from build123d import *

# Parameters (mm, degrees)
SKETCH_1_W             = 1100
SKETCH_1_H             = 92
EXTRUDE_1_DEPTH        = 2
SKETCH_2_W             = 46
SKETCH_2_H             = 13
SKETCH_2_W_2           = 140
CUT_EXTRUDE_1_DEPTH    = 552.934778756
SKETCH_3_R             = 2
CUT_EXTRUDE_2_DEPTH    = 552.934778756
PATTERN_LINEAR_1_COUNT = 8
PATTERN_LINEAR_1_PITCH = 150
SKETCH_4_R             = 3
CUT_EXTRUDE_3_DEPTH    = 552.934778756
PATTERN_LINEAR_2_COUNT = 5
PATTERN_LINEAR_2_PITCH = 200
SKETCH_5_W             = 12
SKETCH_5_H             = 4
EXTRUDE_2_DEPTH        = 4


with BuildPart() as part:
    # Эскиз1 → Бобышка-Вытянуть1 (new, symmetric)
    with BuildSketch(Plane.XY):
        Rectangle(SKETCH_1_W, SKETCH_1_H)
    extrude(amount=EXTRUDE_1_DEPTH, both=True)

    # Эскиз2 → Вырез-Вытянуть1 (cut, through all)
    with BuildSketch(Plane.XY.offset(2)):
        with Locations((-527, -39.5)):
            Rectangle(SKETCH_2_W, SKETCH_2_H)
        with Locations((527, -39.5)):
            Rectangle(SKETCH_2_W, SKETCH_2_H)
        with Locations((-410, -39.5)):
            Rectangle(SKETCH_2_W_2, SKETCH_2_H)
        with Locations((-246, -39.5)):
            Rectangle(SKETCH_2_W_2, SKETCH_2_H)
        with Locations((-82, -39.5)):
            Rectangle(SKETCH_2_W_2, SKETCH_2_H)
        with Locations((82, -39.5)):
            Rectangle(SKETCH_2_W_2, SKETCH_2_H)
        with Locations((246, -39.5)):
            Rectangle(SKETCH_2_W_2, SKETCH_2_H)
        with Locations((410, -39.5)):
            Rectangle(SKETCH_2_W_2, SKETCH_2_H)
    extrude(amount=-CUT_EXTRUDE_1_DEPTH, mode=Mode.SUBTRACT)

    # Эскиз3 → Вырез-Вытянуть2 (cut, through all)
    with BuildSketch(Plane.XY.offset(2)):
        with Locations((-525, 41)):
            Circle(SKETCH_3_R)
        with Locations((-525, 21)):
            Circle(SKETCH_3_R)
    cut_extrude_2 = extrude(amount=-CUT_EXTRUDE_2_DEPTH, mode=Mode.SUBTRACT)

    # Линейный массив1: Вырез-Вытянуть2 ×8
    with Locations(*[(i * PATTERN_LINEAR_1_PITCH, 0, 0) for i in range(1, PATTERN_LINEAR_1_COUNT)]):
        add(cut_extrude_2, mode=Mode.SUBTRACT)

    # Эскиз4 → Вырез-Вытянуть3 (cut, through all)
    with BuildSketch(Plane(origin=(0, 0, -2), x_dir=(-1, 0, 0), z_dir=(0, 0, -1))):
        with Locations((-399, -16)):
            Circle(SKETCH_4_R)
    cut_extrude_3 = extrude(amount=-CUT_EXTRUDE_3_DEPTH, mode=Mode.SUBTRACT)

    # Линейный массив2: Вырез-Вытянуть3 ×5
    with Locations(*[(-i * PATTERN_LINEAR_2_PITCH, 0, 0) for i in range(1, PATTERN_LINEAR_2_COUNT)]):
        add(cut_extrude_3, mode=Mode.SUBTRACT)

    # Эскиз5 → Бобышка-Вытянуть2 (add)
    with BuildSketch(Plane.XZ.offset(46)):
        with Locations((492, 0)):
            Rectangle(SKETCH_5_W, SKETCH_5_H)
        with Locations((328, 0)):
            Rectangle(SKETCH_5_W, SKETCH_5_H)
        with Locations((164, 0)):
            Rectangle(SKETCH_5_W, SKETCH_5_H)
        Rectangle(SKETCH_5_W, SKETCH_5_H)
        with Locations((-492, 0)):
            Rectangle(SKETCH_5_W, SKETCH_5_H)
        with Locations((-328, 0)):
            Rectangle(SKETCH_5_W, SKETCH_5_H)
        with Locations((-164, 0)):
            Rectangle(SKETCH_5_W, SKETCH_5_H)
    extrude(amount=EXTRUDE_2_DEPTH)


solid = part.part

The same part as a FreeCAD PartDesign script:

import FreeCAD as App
import Part
import Sketcher
from FreeCAD import Vector
Q = App.Units.Quantity

doc = App.newDocument("Part")
body = doc.addObject("PartDesign::Body", "Body")

# Sketch on XY plane
sketch1 = body.newObject("Sketcher::SketchObject", "Sketch")
sketch1.AttachmentSupport = (doc.getObject("XY_Plane"), [""])
sketch1.MapMode = "FlatFace"
sketch1.addGeometry(Part.LineSegment(Vector(-550, 46, 0), Vector(-550, -46, 0)), False)
sketch1.addGeometry(Part.LineSegment(Vector(-550, -46, 0), Vector(550, -46, 0)), False)
sketch1.addGeometry(Part.LineSegment(Vector(550, -46, 0), Vector(550, 46, 0)), False)
sketch1.addGeometry(Part.LineSegment(Vector(550, 46, 0), Vector(-550, 46, 0)), False)
sketch1.addConstraint(Sketcher.Constraint("Coincident", 0, 2, 1, 1))
sketch1.addConstraint(Sketcher.Constraint("Coincident", 1, 2, 2, 1))
sketch1.addConstraint(Sketcher.Constraint("Coincident", 2, 2, 3, 1))
sketch1.addConstraint(Sketcher.Constraint("Coincident", 3, 2, 0, 1))
sketch1.addConstraint(Sketcher.Constraint("Vertical", 0))
sketch1.addConstraint(Sketcher.Constraint("Horizontal", 1))
sketch1.addConstraint(Sketcher.Constraint("Vertical", 2))
sketch1.addConstraint(Sketcher.Constraint("Horizontal", 3))
sketch1.addConstraint(Sketcher.Constraint("Symmetric", 0, 2, 2, 2, -1, 1))
sketch1.addConstraint(Sketcher.Constraint("DistanceX", 1, 1, 1, 2, Q("1100 mm")))
sketch1.addConstraint(Sketcher.Constraint("DistanceY", 0, 2, 0, 1, Q("92 mm")))
pad1 = body.newObject("PartDesign::Pad", "Pad")
pad1.Profile = sketch1
pad1.Length = 4
pad1.Midplane = True

# Sketch on XY plane
sketch2 = body.newObject("Sketcher::SketchObject", "Sketch001")
sketch2.AttachmentSupport = (doc.getObject("XY_Plane"), [""])
sketch2.MapMode = "FlatFace"
sketch2.AttachmentOffset = App.Placement(Vector(0, 0, 2), App.Rotation())
sketch2.addGeometry(Part.LineSegment(Vector(-550, -33, 0), Vector(-550, -46, 0)), False)
sketch2.addGeometry(Part.LineSegment(Vector(-550, -46, 0), Vector(-504, -46, 0)), False)
sketch2.addGeometry(Part.LineSegment(Vector(-504, -46, 0), Vector(-504, -33, 0)), False)
sketch2.addGeometry(Part.LineSegment(Vector(-504, -33, 0), Vector(-550, -33, 0)), False)
sketch2.addGeometry(Part.LineSegment(Vector(504, -33, 0), Vector(504, -46, 0)), False)
sketch2.addGeometry(Part.LineSegment(Vector(504, -46, 0), Vector(550, -46, 0)), False)
sketch2.addGeometry(Part.LineSegment(Vector(550, -46, 0), Vector(550, -33, 0)), False)
sketch2.addGeometry(Part.LineSegment(Vector(550, -33, 0), Vector(504, -33, 0)), False)
sketch2.addGeometry(Part.LineSegment(Vector(-480, -33, 0), Vector(-480, -46, 0)), False)
sketch2.addGeometry(Part.LineSegment(Vector(-480, -46, 0), Vector(-340, -46, 0)), False)
sketch2.addGeometry(Part.LineSegment(Vector(-340, -46, 0), Vector(-340, -33, 0)), False)
sketch2.addGeometry(Part.LineSegment(Vector(-340, -33, 0), Vector(-480, -33, 0)), False)
sketch2.addGeometry(Part.LineSegment(Vector(-316, -33, 0), Vector(-316, -46, 0)), False)
sketch2.addGeometry(Part.LineSegment(Vector(-316, -46, 0), Vector(-176, -46, 0)), False)
sketch2.addGeometry(Part.LineSegment(Vector(-176, -46, 0), Vector(-176, -33, 0)), False)
sketch2.addGeometry(Part.LineSegment(Vector(-176, -33, 0), Vector(-316, -33, 0)), False)
sketch2.addGeometry(Part.LineSegment(Vector(-152, -33, 0), Vector(-152, -46, 0)), False)
sketch2.addGeometry(Part.LineSegment(Vector(-152, -46, 0), Vector(-12, -46, 0)), False)
sketch2.addGeometry(Part.LineSegment(Vector(-12, -46, 0), Vector(-12, -33, 0)), False)
sketch2.addGeometry(Part.LineSegment(Vector(-12, -33, 0), Vector(-152, -33, 0)), False)
sketch2.addGeometry(Part.LineSegment(Vector(12, -33, 0), Vector(12, -46, 0)), False)
sketch2.addGeometry(Part.LineSegment(Vector(12, -46, 0), Vector(152, -46, 0)), False)
sketch2.addGeometry(Part.LineSegment(Vector(152, -46, 0), Vector(152, -33, 0)), False)
sketch2.addGeometry(Part.LineSegment(Vector(152, -33, 0), Vector(12, -33, 0)), False)
sketch2.addGeometry(Part.LineSegment(Vector(176, -33, 0), Vector(176, -46, 0)), False)
sketch2.addGeometry(Part.LineSegment(Vector(176, -46, 0), Vector(316, -46, 0)), False)
sketch2.addGeometry(Part.LineSegment(Vector(316, -46, 0), Vector(316, -33, 0)), False)
sketch2.addGeometry(Part.LineSegment(Vector(316, -33, 0), Vector(176, -33, 0)), False)
sketch2.addGeometry(Part.LineSegment(Vector(340, -33, 0), Vector(340, -46, 0)), False)
sketch2.addGeometry(Part.LineSegment(Vector(340, -46, 0), Vector(480, -46, 0)), False)
sketch2.addGeometry(Part.LineSegment(Vector(480, -46, 0), Vector(480, -33, 0)), False)
sketch2.addGeometry(Part.LineSegment(Vector(480, -33, 0), Vector(340, -33, 0)), False)
sketch2.addConstraint(Sketcher.Constraint("Coincident", 0, 2, 1, 1))
sketch2.addConstraint(Sketcher.Constraint("Coincident", 1, 2, 2, 1))
sketch2.addConstraint(Sketcher.Constraint("Coincident", 2, 2, 3, 1))
sketch2.addConstraint(Sketcher.Constraint("Coincident", 3, 2, 0, 1))
sketch2.addConstraint(Sketcher.Constraint("Coincident", 4, 2, 5, 1))
sketch2.addConstraint(Sketcher.Constraint("Coincident", 5, 2, 6, 1))
sketch2.addConstraint(Sketcher.Constraint("Coincident", 6, 2, 7, 1))
sketch2.addConstraint(Sketcher.Constraint("Coincident", 7, 2, 4, 1))
sketch2.addConstraint(Sketcher.Constraint("Coincident", 8, 2, 9, 1))
sketch2.addConstraint(Sketcher.Constraint("Coincident", 9, 2, 10, 1))
sketch2.addConstraint(Sketcher.Constraint("Coincident", 10, 2, 11, 1))
sketch2.addConstraint(Sketcher.Constraint("Coincident", 11, 2, 8, 1))
sketch2.addConstraint(Sketcher.Constraint("Coincident", 12, 2, 13, 1))
sketch2.addConstraint(Sketcher.Constraint("Coincident", 13, 2, 14, 1))
sketch2.addConstraint(Sketcher.Constraint("Coincident", 14, 2, 15, 1))
sketch2.addConstraint(Sketcher.Constraint("Coincident", 15, 2, 12, 1))
sketch2.addConstraint(Sketcher.Constraint("Coincident", 16, 2, 17, 1))
sketch2.addConstraint(Sketcher.Constraint("Coincident", 17, 2, 18, 1))
sketch2.addConstraint(Sketcher.Constraint("Coincident", 18, 2, 19, 1))
sketch2.addConstraint(Sketcher.Constraint("Coincident", 19, 2, 16, 1))
sketch2.addConstraint(Sketcher.Constraint("Coincident", 20, 2, 21, 1))
sketch2.addConstraint(Sketcher.Constraint("Coincident", 21, 2, 22, 1))
sketch2.addConstraint(Sketcher.Constraint("Coincident", 22, 2, 23, 1))
sketch2.addConstraint(Sketcher.Constraint("Coincident", 23, 2, 20, 1))
sketch2.addConstraint(Sketcher.Constraint("Coincident", 24, 2, 25, 1))
sketch2.addConstraint(Sketcher.Constraint("Coincident", 25, 2, 26, 1))
sketch2.addConstraint(Sketcher.Constraint("Coincident", 26, 2, 27, 1))
sketch2.addConstraint(Sketcher.Constraint("Coincident", 27, 2, 24, 1))
sketch2.addConstraint(Sketcher.Constraint("Coincident", 28, 2, 29, 1))
sketch2.addConstraint(Sketcher.Constraint("Coincident", 29, 2, 30, 1))
sketch2.addConstraint(Sketcher.Constraint("Coincident", 30, 2, 31, 1))
sketch2.addConstraint(Sketcher.Constraint("Coincident", 31, 2, 28, 1))
sketch2.addConstraint(Sketcher.Constraint("Vertical", 0))
sketch2.addConstraint(Sketcher.Constraint("Horizontal", 1))
sketch2.addConstraint(Sketcher.Constraint("Vertical", 2))
sketch2.addConstraint(Sketcher.Constraint("Horizontal", 3))
sketch2.addConstraint(Sketcher.Constraint("Vertical", 4))
sketch2.addConstraint(Sketcher.Constraint("Horizontal", 5))
sketch2.addConstraint(Sketcher.Constraint("Vertical", 6))
sketch2.addConstraint(Sketcher.Constraint("Horizontal", 7))
sketch2.addConstraint(Sketcher.Constraint("Vertical", 8))
sketch2.addConstraint(Sketcher.Constraint("Horizontal", 9))
sketch2.addConstraint(Sketcher.Constraint("Vertical", 10))
sketch2.addConstraint(Sketcher.Constraint("Horizontal", 11))
sketch2.addConstraint(Sketcher.Constraint("Vertical", 12))
sketch2.addConstraint(Sketcher.Constraint("Horizontal", 13))
sketch2.addConstraint(Sketcher.Constraint("Vertical", 14))
sketch2.addConstraint(Sketcher.Constraint("Horizontal", 15))
sketch2.addConstraint(Sketcher.Constraint("Vertical", 16))
sketch2.addConstraint(Sketcher.Constraint("Horizontal", 17))
sketch2.addConstraint(Sketcher.Constraint("Vertical", 18))
sketch2.addConstraint(Sketcher.Constraint("Horizontal", 19))
sketch2.addConstraint(Sketcher.Constraint("Vertical", 20))
sketch2.addConstraint(Sketcher.Constraint("Horizontal", 21))
sketch2.addConstraint(Sketcher.Constraint("Vertical", 22))
sketch2.addConstraint(Sketcher.Constraint("Horizontal", 23))
sketch2.addConstraint(Sketcher.Constraint("Vertical", 24))
sketch2.addConstraint(Sketcher.Constraint("Horizontal", 25))
sketch2.addConstraint(Sketcher.Constraint("Vertical", 26))
sketch2.addConstraint(Sketcher.Constraint("Horizontal", 27))
sketch2.addConstraint(Sketcher.Constraint("Vertical", 28))
sketch2.addConstraint(Sketcher.Constraint("Horizontal", 29))
sketch2.addConstraint(Sketcher.Constraint("Vertical", 30))
sketch2.addConstraint(Sketcher.Constraint("Horizontal", 31))
sketch2.addConstraint(Sketcher.Constraint("Symmetric", 1, 2, 4, 2, -2))
sketch2.addConstraint(Sketcher.Constraint("Symmetric", 3, 2, 6, 2, -2))
sketch2.addConstraint(Sketcher.Constraint("Symmetric", 17, 2, 20, 2, -2))
sketch2.addConstraint(Sketcher.Constraint("Symmetric", 19, 2, 22, 2, -2))
sketch2.addConstraint(Sketcher.Constraint("Symmetric", 13, 2, 24, 2, -2))
sketch2.addConstraint(Sketcher.Constraint("Symmetric", 15, 2, 26, 2, -2))
sketch2.addConstraint(Sketcher.Constraint("Symmetric", 9, 2, 28, 2, -2))
sketch2.addConstraint(Sketcher.Constraint("Symmetric", 11, 2, 30, 2, -2))
sketch2.addConstraint(Sketcher.Constraint("Horizontal", 5, 2, 8, 2))
sketch2.addConstraint(Sketcher.Constraint("Horizontal", 7, 2, 10, 2))
sketch2.addConstraint(Sketcher.Constraint("Horizontal", 9, 2, 12, 2))
sketch2.addConstraint(Sketcher.Constraint("Horizontal", 11, 2, 14, 2))
sketch2.addConstraint(Sketcher.Constraint("Horizontal", 13, 2, 16, 2))
sketch2.addConstraint(Sketcher.Constraint("Horizontal", 15, 2, 18, 2))
sketch2.addConstraint(Sketcher.Constraint("Equal", 11, 13))
sketch2.addConstraint(Sketcher.Constraint("Equal", 15, 17))
sketch2.addConstraint(Sketcher.Constraint("DistanceX", 1, 1, 1, 2, Q("46 mm")))
sketch2.addConstraint(Sketcher.Constraint("DistanceX", 9, 1, 9, 2, Q("140 mm")))
sketch2.addConstraint(Sketcher.Constraint("DistanceY", 0, 2, 0, 1, Q("13 mm")))
sketch2.addConstraint(Sketcher.Constraint("DistanceX", 0, 2, -1, 1, Q("550 mm")))
sketch2.addConstraint(Sketcher.Constraint("DistanceY", 0, 2, -1, 1, Q("46 mm")))
sketch2.addConstraint(Sketcher.Constraint("DistanceX", 8, 2, -1, 1, Q("480 mm")))
sketch2.addConstraint(Sketcher.Constraint("DistanceX", 12, 2, -1, 1, Q("316 mm")))
sketch2.addConstraint(Sketcher.Constraint("DistanceX", 16, 2, -1, 1, Q("152 mm")))
pocket1 = body.newObject("PartDesign::Pocket", "Pocket")
pocket1.Profile = sketch2
pocket1.Type = "ThroughAll"

# Sketch on XY plane
sketch3 = body.newObject("Sketcher::SketchObject", "Sketch002")
sketch3.AttachmentSupport = (doc.getObject("XY_Plane"), [""])
sketch3.MapMode = "FlatFace"
sketch3.AttachmentOffset = App.Placement(Vector(0, 0, 2), App.Rotation())
sketch3.addGeometry(Part.Circle(Vector(-525, 41, 0), Vector(0, 0, 1), 2), False)
sketch3.addGeometry(Part.Circle(Vector(-525, 21, 0), Vector(0, 0, 1), 2), False)
sketch3.addConstraint(Sketcher.Constraint("Equal", 0, 1))
sketch3.addConstraint(Sketcher.Constraint("Vertical", 0, 3, 1, 3))
sketch3.addConstraint(Sketcher.Constraint("Diameter", 0, Q("4 mm")))
sketch3.addConstraint(Sketcher.Constraint("DistanceX", 0, 3, -1, 1, Q("525 mm")))
sketch3.addConstraint(Sketcher.Constraint("DistanceY", -1, 1, 0, 3, Q("41 mm")))
sketch3.addConstraint(Sketcher.Constraint("DistanceY", -1, 1, 1, 3, Q("21 mm")))
pocket2 = body.newObject("PartDesign::Pocket", "Pocket001")
pocket2.Profile = sketch3
pocket2.Type = "ThroughAll"
doc.recompute()

linearpattern = body.newObject("PartDesign::LinearPattern", "LinearPattern")
linearpattern.Originals = [pocket2]
linearpattern.Direction = (doc.getObject("X_Axis"), [""])
linearpattern.Mode = "offset"
linearpattern.Offset = 150
linearpattern.Occurrences = 8
body.Tip = linearpattern

# Sketch on XY plane
sketch4 = body.newObject("Sketcher::SketchObject", "Sketch003")
sketch4.AttachmentSupport = (doc.getObject("XY_Plane"), [""])
sketch4.MapMode = "FlatFace"
sketch4.AttachmentOffset = App.Placement(Vector(0, 0, -2), App.Rotation())
sketch4.addGeometry(Part.Circle(Vector(399, -16, 0), Vector(0, 0, 1), 3), False)
sketch4.addConstraint(Sketcher.Constraint("Diameter", 0, Q("6 mm")))
sketch4.addConstraint(Sketcher.Constraint("DistanceX", -1, 1, 0, 3, Q("399 mm")))
sketch4.addConstraint(Sketcher.Constraint("DistanceY", 0, 3, -1, 1, Q("16 mm")))
pocket3 = body.newObject("PartDesign::Pocket", "Pocket002")
pocket3.Profile = sketch4
pocket3.Type = "ThroughAll"
pocket3.Reversed = True
doc.recompute()

linearpattern2 = body.newObject("PartDesign::LinearPattern", "LinearPattern001")
linearpattern2.Originals = [pocket3]
linearpattern2.Direction = (doc.getObject("X_Axis"), [""])
linearpattern2.Mode = "offset"
linearpattern2.Offset = 200
linearpattern2.Occurrences = 5
linearpattern2.Reversed = True
body.Tip = linearpattern2

# Sketch on XZ plane
sketch5 = body.newObject("Sketcher::SketchObject", "Sketch004")
sketch5.AttachmentSupport = (doc.getObject("XZ_Plane"), [""])
sketch5.MapMode = "FlatFace"
sketch5.AttachmentOffset = App.Placement(Vector(0, 0, 46), App.Rotation())
sketch5.addGeometry(Part.LineSegment(Vector(486, 2, 0), Vector(486, -2, 0)), False)
sketch5.addGeometry(Part.LineSegment(Vector(486, -2, 0), Vector(498, -2, 0)), False)
sketch5.addGeometry(Part.LineSegment(Vector(498, -2, 0), Vector(498, 2, 0)), False)
sketch5.addGeometry(Part.LineSegment(Vector(498, 2, 0), Vector(486, 2, 0)), False)
sketch5.addGeometry(Part.LineSegment(Vector(322, 2, 0), Vector(322, -2, 0)), False)
sketch5.addGeometry(Part.LineSegment(Vector(322, -2, 0), Vector(334, -2, 0)), False)
sketch5.addGeometry(Part.LineSegment(Vector(334, -2, 0), Vector(334, 2, 0)), False)
sketch5.addGeometry(Part.LineSegment(Vector(334, 2, 0), Vector(322, 2, 0)), False)
sketch5.addGeometry(Part.LineSegment(Vector(158, 2, 0), Vector(158, -2, 0)), False)
sketch5.addGeometry(Part.LineSegment(Vector(158, -2, 0), Vector(170, -2, 0)), False)
sketch5.addGeometry(Part.LineSegment(Vector(170, -2, 0), Vector(170, 2, 0)), False)
sketch5.addGeometry(Part.LineSegment(Vector(170, 2, 0), Vector(158, 2, 0)), False)
sketch5.addGeometry(Part.LineSegment(Vector(-6, 2, 0), Vector(-6, -2, 0)), False)
sketch5.addGeometry(Part.LineSegment(Vector(-6, -2, 0), Vector(6, -2, 0)), False)
sketch5.addGeometry(Part.LineSegment(Vector(6, -2, 0), Vector(6, 2, 0)), False)
sketch5.addGeometry(Part.LineSegment(Vector(6, 2, 0), Vector(-6, 2, 0)), False)
sketch5.addGeometry(Part.LineSegment(Vector(-498, 2, 0), Vector(-498, -2, 0)), False)
sketch5.addGeometry(Part.LineSegment(Vector(-498, -2, 0), Vector(-486, -2, 0)), False)
sketch5.addGeometry(Part.LineSegment(Vector(-486, -2, 0), Vector(-486, 2, 0)), False)
sketch5.addGeometry(Part.LineSegment(Vector(-486, 2, 0), Vector(-498, 2, 0)), False)
sketch5.addGeometry(Part.LineSegment(Vector(-334, 2, 0), Vector(-334, -2, 0)), False)
sketch5.addGeometry(Part.LineSegment(Vector(-334, -2, 0), Vector(-322, -2, 0)), False)
sketch5.addGeometry(Part.LineSegment(Vector(-322, -2, 0), Vector(-322, 2, 0)), False)
sketch5.addGeometry(Part.LineSegment(Vector(-322, 2, 0), Vector(-334, 2, 0)), False)
sketch5.addGeometry(Part.LineSegment(Vector(-170, 2, 0), Vector(-170, -2, 0)), False)
sketch5.addGeometry(Part.LineSegment(Vector(-170, -2, 0), Vector(-158, -2, 0)), False)
sketch5.addGeometry(Part.LineSegment(Vector(-158, -2, 0), Vector(-158, 2, 0)), False)
sketch5.addGeometry(Part.LineSegment(Vector(-158, 2, 0), Vector(-170, 2, 0)), False)
sketch5.addConstraint(Sketcher.Constraint("Coincident", 0, 2, 1, 1))
sketch5.addConstraint(Sketcher.Constraint("Coincident", 1, 2, 2, 1))
sketch5.addConstraint(Sketcher.Constraint("Coincident", 2, 2, 3, 1))
sketch5.addConstraint(Sketcher.Constraint("Coincident", 3, 2, 0, 1))
sketch5.addConstraint(Sketcher.Constraint("Coincident", 4, 2, 5, 1))
sketch5.addConstraint(Sketcher.Constraint("Coincident", 5, 2, 6, 1))
sketch5.addConstraint(Sketcher.Constraint("Coincident", 6, 2, 7, 1))
sketch5.addConstraint(Sketcher.Constraint("Coincident", 7, 2, 4, 1))
sketch5.addConstraint(Sketcher.Constraint("Coincident", 8, 2, 9, 1))
sketch5.addConstraint(Sketcher.Constraint("Coincident", 9, 2, 10, 1))
sketch5.addConstraint(Sketcher.Constraint("Coincident", 10, 2, 11, 1))
sketch5.addConstraint(Sketcher.Constraint("Coincident", 11, 2, 8, 1))
sketch5.addConstraint(Sketcher.Constraint("Coincident", 12, 2, 13, 1))
sketch5.addConstraint(Sketcher.Constraint("Coincident", 13, 2, 14, 1))
sketch5.addConstraint(Sketcher.Constraint("Coincident", 14, 2, 15, 1))
sketch5.addConstraint(Sketcher.Constraint("Coincident", 15, 2, 12, 1))
sketch5.addConstraint(Sketcher.Constraint("Coincident", 16, 2, 17, 1))
sketch5.addConstraint(Sketcher.Constraint("Coincident", 17, 2, 18, 1))
sketch5.addConstraint(Sketcher.Constraint("Coincident", 18, 2, 19, 1))
sketch5.addConstraint(Sketcher.Constraint("Coincident", 19, 2, 16, 1))
sketch5.addConstraint(Sketcher.Constraint("Coincident", 20, 2, 21, 1))
sketch5.addConstraint(Sketcher.Constraint("Coincident", 21, 2, 22, 1))
sketch5.addConstraint(Sketcher.Constraint("Coincident", 22, 2, 23, 1))
sketch5.addConstraint(Sketcher.Constraint("Coincident", 23, 2, 20, 1))
sketch5.addConstraint(Sketcher.Constraint("Coincident", 24, 2, 25, 1))
sketch5.addConstraint(Sketcher.Constraint("Coincident", 25, 2, 26, 1))
sketch5.addConstraint(Sketcher.Constraint("Coincident", 26, 2, 27, 1))
sketch5.addConstraint(Sketcher.Constraint("Coincident", 27, 2, 24, 1))
sketch5.addConstraint(Sketcher.Constraint("Vertical", 0))
sketch5.addConstraint(Sketcher.Constraint("Horizontal", 1))
sketch5.addConstraint(Sketcher.Constraint("Vertical", 2))
sketch5.addConstraint(Sketcher.Constraint("Horizontal", 3))
sketch5.addConstraint(Sketcher.Constraint("Vertical", 4))
sketch5.addConstraint(Sketcher.Constraint("Horizontal", 5))
sketch5.addConstraint(Sketcher.Constraint("Vertical", 6))
sketch5.addConstraint(Sketcher.Constraint("Horizontal", 7))
sketch5.addConstraint(Sketcher.Constraint("Vertical", 8))
sketch5.addConstraint(Sketcher.Constraint("Horizontal", 9))
sketch5.addConstraint(Sketcher.Constraint("Vertical", 10))
sketch5.addConstraint(Sketcher.Constraint("Horizontal", 11))
sketch5.addConstraint(Sketcher.Constraint("Vertical", 12))
sketch5.addConstraint(Sketcher.Constraint("Horizontal", 13))
sketch5.addConstraint(Sketcher.Constraint("Vertical", 14))
sketch5.addConstraint(Sketcher.Constraint("Horizontal", 15))
sketch5.addConstraint(Sketcher.Constraint("Vertical", 16))
sketch5.addConstraint(Sketcher.Constraint("Horizontal", 17))
sketch5.addConstraint(Sketcher.Constraint("Vertical", 18))
sketch5.addConstraint(Sketcher.Constraint("Horizontal", 19))
sketch5.addConstraint(Sketcher.Constraint("Vertical", 20))
sketch5.addConstraint(Sketcher.Constraint("Horizontal", 21))
sketch5.addConstraint(Sketcher.Constraint("Vertical", 22))
sketch5.addConstraint(Sketcher.Constraint("Horizontal", 23))
sketch5.addConstraint(Sketcher.Constraint("Vertical", 24))
sketch5.addConstraint(Sketcher.Constraint("Horizontal", 25))
sketch5.addConstraint(Sketcher.Constraint("Vertical", 26))
sketch5.addConstraint(Sketcher.Constraint("Horizontal", 27))
sketch5.addConstraint(Sketcher.Constraint("Symmetric", 12, 2, 14, 2, -1, 1))
sketch5.addConstraint(Sketcher.Constraint("Symmetric", 2, 2, 16, 2, -1, 1))
sketch5.addConstraint(Sketcher.Constraint("Symmetric", 0, 2, 18, 2, -1, 1))
sketch5.addConstraint(Sketcher.Constraint("Symmetric", 6, 2, 20, 2, -1, 1))
sketch5.addConstraint(Sketcher.Constraint("Symmetric", 4, 2, 22, 2, -1, 1))
sketch5.addConstraint(Sketcher.Constraint("Symmetric", 10, 2, 24, 2, -1, 1))
sketch5.addConstraint(Sketcher.Constraint("Symmetric", 8, 2, 26, 2, -1, 1))
sketch5.addConstraint(Sketcher.Constraint("Horizontal", 1, 2, 4, 2))
sketch5.addConstraint(Sketcher.Constraint("Horizontal", 3, 2, 6, 2))
sketch5.addConstraint(Sketcher.Constraint("Horizontal", 5, 2, 8, 2))
sketch5.addConstraint(Sketcher.Constraint("Horizontal", 7, 2, 10, 2))
sketch5.addConstraint(Sketcher.Constraint("Horizontal", 9, 2, 12, 2))
sketch5.addConstraint(Sketcher.Constraint("Horizontal", 11, 2, 14, 2))
sketch5.addConstraint(Sketcher.Constraint("Equal", 3, 5))
sketch5.addConstraint(Sketcher.Constraint("Equal", 7, 9))
sketch5.addConstraint(Sketcher.Constraint("Equal", 11, 13))
sketch5.addConstraint(Sketcher.Constraint("DistanceX", 1, 1, 1, 2, Q("12 mm")))
sketch5.addConstraint(Sketcher.Constraint("DistanceY", 0, 2, 0, 1, Q("4 mm")))
sketch5.addConstraint(Sketcher.Constraint("DistanceX", -1, 1, 0, 2, Q("486 mm")))
sketch5.addConstraint(Sketcher.Constraint("DistanceX", -1, 1, 4, 2, Q("322 mm")))
sketch5.addConstraint(Sketcher.Constraint("DistanceX", -1, 1, 8, 2, Q("158 mm")))
pad2 = body.newObject("PartDesign::Pad", "Pad001")
pad2.Profile = sketch5
pad2.Length = 4

doc.recompute()
